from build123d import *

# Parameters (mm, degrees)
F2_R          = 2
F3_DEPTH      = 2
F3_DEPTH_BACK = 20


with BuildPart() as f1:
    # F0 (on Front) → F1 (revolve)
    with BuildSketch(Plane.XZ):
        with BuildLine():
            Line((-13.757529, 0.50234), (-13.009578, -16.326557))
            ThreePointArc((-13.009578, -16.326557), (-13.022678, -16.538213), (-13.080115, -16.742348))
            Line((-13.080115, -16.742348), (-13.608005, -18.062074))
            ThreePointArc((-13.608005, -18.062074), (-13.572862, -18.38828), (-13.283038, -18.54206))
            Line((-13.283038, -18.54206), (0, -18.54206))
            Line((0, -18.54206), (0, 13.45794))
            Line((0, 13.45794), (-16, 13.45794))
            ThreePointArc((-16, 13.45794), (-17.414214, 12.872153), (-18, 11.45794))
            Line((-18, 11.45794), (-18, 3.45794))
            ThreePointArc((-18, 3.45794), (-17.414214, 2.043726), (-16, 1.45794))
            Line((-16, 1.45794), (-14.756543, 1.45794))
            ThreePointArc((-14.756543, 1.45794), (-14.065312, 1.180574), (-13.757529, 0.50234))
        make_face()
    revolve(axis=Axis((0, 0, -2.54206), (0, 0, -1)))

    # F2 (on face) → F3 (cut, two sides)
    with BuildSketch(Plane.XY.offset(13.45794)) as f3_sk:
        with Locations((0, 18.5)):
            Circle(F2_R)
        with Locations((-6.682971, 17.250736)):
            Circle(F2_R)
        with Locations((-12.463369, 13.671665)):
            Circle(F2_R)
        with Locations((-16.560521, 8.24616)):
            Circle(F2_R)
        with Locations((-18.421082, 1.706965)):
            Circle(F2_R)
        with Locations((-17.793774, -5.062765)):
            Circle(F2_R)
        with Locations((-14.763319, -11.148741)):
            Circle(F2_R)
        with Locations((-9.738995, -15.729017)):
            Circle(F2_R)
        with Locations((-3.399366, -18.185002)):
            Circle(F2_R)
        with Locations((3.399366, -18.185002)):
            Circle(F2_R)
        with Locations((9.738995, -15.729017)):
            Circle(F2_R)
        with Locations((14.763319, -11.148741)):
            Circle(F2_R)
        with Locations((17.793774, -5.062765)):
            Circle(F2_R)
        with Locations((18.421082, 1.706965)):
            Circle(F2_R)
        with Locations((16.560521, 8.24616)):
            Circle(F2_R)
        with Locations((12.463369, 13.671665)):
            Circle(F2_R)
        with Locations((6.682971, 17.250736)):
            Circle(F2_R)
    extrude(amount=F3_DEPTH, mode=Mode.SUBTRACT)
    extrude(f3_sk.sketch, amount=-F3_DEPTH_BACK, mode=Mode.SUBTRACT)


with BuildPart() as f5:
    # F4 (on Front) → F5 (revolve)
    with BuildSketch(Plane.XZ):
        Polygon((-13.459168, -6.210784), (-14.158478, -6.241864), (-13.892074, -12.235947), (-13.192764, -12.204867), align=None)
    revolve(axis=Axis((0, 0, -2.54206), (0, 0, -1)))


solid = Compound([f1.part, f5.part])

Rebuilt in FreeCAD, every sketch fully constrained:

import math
import FreeCAD as App
import Part
import Sketcher
from FreeCAD import Vector
Q = App.Units.Quantity


def add_polygon(sketch, points):
    """Adds a closed chain of lines whose ends are joined by coincident constraints."""
    first, n = sketch.GeometryCount, len(points)
    for a, b in zip(points, points[1:] + points[:1]):
        sketch.addGeometry(Part.LineSegment(App.Vector(*a, 0), App.Vector(*b, 0)), False)
    for i in range(n):
        sketch.addConstraint(Sketcher.Constraint("Coincident", first + i, 2, first + (i + 1) % n, 1))

doc = App.newDocument("Part")
body = doc.addObject("PartDesign::Body", "Body")

# Sketch on XZ plane
sketch1 = body.newObject("Sketcher::SketchObject", "Sketch")
sketch1.AttachmentSupport = (doc.getObject("XZ_Plane"), [""])
sketch1.MapMode = "FlatFace"
sketch1.addGeometry([
    Part.LineSegment(Vector(-13.76, 0.5, 0), Vector(-13.01, -16.33, 0)),  # 0
    Part.ArcOfCircle(Part.Circle(Vector(-14.01, -16.37, 0), Vector(0, 0, 1), 1), math.radians(-22), math.radians(3)),  # 1
    Part.LineSegment(Vector(-13.08, -16.74, 0), Vector(-13.61, -18.06, 0)),  # 2
    Part.ArcOfCircle(Part.Circle(Vector(-13.28, -18.19, 0), Vector(0, 0, 1), 0.35), math.radians(158), math.radians(270)),  # 3
    Part.LineSegment(Vector(-13.28, -18.54, 0), Vector(0, -18.54, 0)),  # 4
    Part.LineSegment(Vector(0, -18.54, 0), Vector(0, 13.46, 0)),  # 5
    Part.LineSegment(Vector(0, 13.46, 0), Vector(-16, 13.46, 0)),  # 6
    Part.ArcOfCircle(Part.Circle(Vector(-16, 11.46, 0), Vector(0, 0, 1), 2), math.radians(90), math.radians(180)),  # 7
    Part.LineSegment(Vector(-18, 11.46, 0), Vector(-18, 3.46, 0)),  # 8
    Part.ArcOfCircle(Part.Circle(Vector(-16, 3.46, 0), Vector(0, 0, 1), 2), math.radians(180), math.radians(270)),  # 9
    Part.LineSegment(Vector(-16, 1.46, 0), Vector(-14.76, 1.46, 0)),  # 10
    Part.ArcOfCircle(Part.Circle(Vector(-14.76, 0.46, 0), Vector(0, 0, 1), 1), math.radians(3), math.radians(90)),  # 11
], False)
sketch1.addConstraint([
    Sketcher.Constraint("Tangent", 0, 2, 1, 2),
    Sketcher.Constraint("Tangent", 1, 1, 2, 1),
    Sketcher.Constraint("Tangent", 2, 2, 3, 1),
    Sketcher.Constraint("Coincident", 3, 2, 4, 1),
    Sketcher.Constraint("Coincident", 4, 2, 5, 1),
    Sketcher.Constraint("Coincident", 5, 2, 6, 1),
    Sketcher.Constraint("Tangent", 6, 2, 7, 1),
    Sketcher.Constraint("Tangent", 7, 2, 8, 1),
    Sketcher.Constraint("Tangent", 8, 2, 9, 1),
    Sketcher.Constraint("Tangent", 9, 2, 10, 1),
    Sketcher.Constraint("Tangent", 10, 2, 11, 2),
    Sketcher.Constraint("Tangent", 11, 1, 0, 1),
    Sketcher.Constraint("Horizontal", 4),
    Sketcher.Constraint("Vertical", 5),
    Sketcher.Constraint("Horizontal", 6),
    Sketcher.Constraint("Vertical", 8),
    Sketcher.Constraint("Horizontal", 10),
    Sketcher.Constraint("Equal", 7, 9),
    Sketcher.Constraint("PointOnObject", 4, 2, -2),
    Sketcher.Constraint("Radius", 7, Q("2 mm")),
    Sketcher.Constraint("Radius", 11, Q("1 mm")),
    Sketcher.Constraint("DistanceX", 6, 2, 6, 1, Q("16 mm")),
    Sketcher.Constraint("DistanceY", 5, 1, 5, 2, Q("32 mm")),
    Sketcher.Constraint("DistanceY", 8, 2, 8, 1, Q("8 mm")),
    Sketcher.Constraint("Radius", 3, Q("0.349999 mm")),
    Sketcher.Constraint("Radius", 1, Q("0.999991 mm")),
    Sketcher.Constraint("DistanceY", 3, 3, 1, 3, Q("1.821101 mm")),
    Sketcher.Constraint("DistanceY", 11, 3, 11, 1, Q("0.0444 mm")),
    Sketcher.Constraint("Distance", 2, Q("1.421388 mm")),
    Sketcher.Constraint("DistanceX", 4, 1, 4, 2, Q("13.283038 mm")),
    Sketcher.Constraint("DistanceX", 10, 1, 10, 2, Q("1.243457 mm")),
    Sketcher.Constraint("DistanceY", 1, 3, -1, 1, Q("16.370959 mm")),
])
revolution = body.newObject("PartDesign::Revolution", "Revolution")
revolution.Profile = sketch1
revolution.ReferenceAxis = (sketch1, ["V_Axis"])
revolution.Angle = 360

# Sketch on XY plane
sketch2 = body.newObject("Sketcher::SketchObject", "Sketch001")
sketch2.AttachmentSupport = (doc.getObject("XY_Plane"), [""])
sketch2.MapMode = "FlatFace"
sketch2.AttachmentOffset = App.Placement(Vector(0, 0, 13.45794), App.Rotation())
sketch2.addGeometry([
    Part.Circle(Vector(0, 18.5, 0), Vector(0, 0, 1), 2),  # 0
    Part.Circle(Vector(-6.7, 17.3, 0), Vector(0, 0, 1), 2),  # 1
    Part.Circle(Vector(-12.5, 13.7, 0), Vector(0, 0, 1), 2),  # 2
    Part.Circle(Vector(-16.6, 8.2, 0), Vector(0, 0, 1), 2),  # 3
    Part.Circle(Vector(-18.4, 1.7, 0), Vector(0, 0, 1), 2),  # 4
    Part.Circle(Vector(-17.8, -5.1, 0), Vector(0, 0, 1), 2),  # 5
    Part.Circle(Vector(-14.8, -11.1, 0), Vector(0, 0, 1), 2),  # 6
    Part.Circle(Vector(-9.7, -15.7, 0), Vector(0, 0, 1), 2),  # 7
    Part.Circle(Vector(-3.4, -18.2, 0), Vector(0, 0, 1), 2),  # 8
    Part.Circle(Vector(3.4, -18.2, 0), Vector(0, 0, 1), 2),  # 9
    Part.Circle(Vector(9.7, -15.7, 0), Vector(0, 0, 1), 2),  # 10
    Part.Circle(Vector(14.8, -11.1, 0), Vector(0, 0, 1), 2),  # 11
    Part.Circle(Vector(17.8, -5.1, 0), Vector(0, 0, 1), 2),  # 12
    Part.Circle(Vector(18.4, 1.7, 0), Vector(0, 0, 1), 2),  # 13
    Part.Circle(Vector(16.6, 8.2, 0), Vector(0, 0, 1), 2),  # 14
    Part.Circle(Vector(12.5, 13.7, 0), Vector(0, 0, 1), 2),  # 15
    Part.Circle(Vector(6.7, 17.3, 0), Vector(0, 0, 1), 2),  # 16
], False)
sketch2.addConstraint([
    Sketcher.Constraint("Equal", 0, 1),
    Sketcher.Constraint("Equal", 1, 2),
    Sketcher.Constraint("Equal", 2, 3),
    Sketcher.Constraint("Equal", 3, 4),
    Sketcher.Constraint("Equal", 4, 5),
    Sketcher.Constraint("Equal", 5, 6),
    Sketcher.Constraint("Equal", 6, 7),
    Sketcher.Constraint("Equal", 7, 8),
    Sketcher.Constraint("Equal", 8, 9),
    Sketcher.Constraint("Equal", 9, 10),
    Sketcher.Constraint("Equal", 10, 11),
    Sketcher.Constraint("Equal", 11, 12),
    Sketcher.Constraint("Equal", 12, 13),
    Sketcher.Constraint("Equal", 13, 14),
    Sketcher.Constraint("Equal", 14, 15),
    Sketcher.Constraint("Equal", 15, 16),
    Sketcher.Constraint("Symmetric", 8, 3, 9, 3, -2),
    Sketcher.Constraint("Symmetric", 7, 3, 10, 3, -2),
    Sketcher.Constraint("Symmetric", 6, 3, 11, 3, -2),
    Sketcher.Constraint("Symmetric", 5, 3, 12, 3, -2),
    Sketcher.Constraint("Symmetric", 4, 3, 13, 3, -2),
    Sketcher.Constraint("Symmetric", 3, 3, 14, 3, -2),
    Sketcher.Constraint("Symmetric", 2, 3, 15, 3, -2),
    Sketcher.Constraint("Symmetric", 1, 3, 16, 3, -2),
    Sketcher.Constraint("PointOnObject", 0, 3, -2),
    Sketcher.Constraint("Diameter", 0, Q("4 mm")),
    Sketcher.Constraint("DistanceY", -1, 1, 0, 3, Q("18.5 mm")),
    Sketcher.Constraint("DistanceY", 4, 3, 2, 3, Q("11.9647 mm")),
    Sketcher.Constraint("DistanceY", 5, 3, 1, 3, Q("22.313501 mm")),
    Sketcher.Constraint("DistanceY", 6, 3, 3, 3, Q("19.394901 mm")),
    Sketcher.Constraint("DistanceX", 1, 3, -1, 1, Q("6.682971 mm")),
    Sketcher.Constraint("DistanceX", 2, 3, -1, 1, Q("12.463369 mm")),
    Sketcher.Constraint("DistanceX", 3, 3, -1, 1, Q("16.560521 mm")),
    Sketcher.Constraint("DistanceY", -1, 1, 3, 3, Q("8.24616 mm")),
    Sketcher.Constraint("DistanceX", 4, 3, -1, 1, Q("18.421082 mm")),
    Sketcher.Constraint("DistanceX", 6, 3, -1, 1, Q("14.763319 mm")),
    Sketcher.Constraint("DistanceY", 2, 3, 1, 3, Q("3.579071 mm")),
    Sketcher.Constraint("DistanceX", 5, 3, 7, 3, Q("8.054779 mm")),
    Sketcher.Constraint("DistanceY", 7, 3, 4, 3, Q("17.435982 mm")),
    Sketcher.Constraint("DistanceX", 7, 3, 8, 3, Q("6.339629 mm")),
    Sketcher.Constraint("DistanceY", 8, 3, 6, 3, Q("7.036261 mm")),
    Sketcher.Constraint("DistanceX", 7, 3, 9, 3, Q("13.138361 mm")),
    Sketcher.Constraint("DistanceY", -1, 1, 1, 3, Q("17.250736 mm")),
])
pocket1 = body.newObject("PartDesign::Pocket", "Pocket")
pocket1.Profile = sketch2
pocket1.Type = "ThroughAll"
pocket1.Midplane = True
body2 = doc.addObject("PartDesign::Body", "Body001")

# Sketch on XZ plane
sketch3 = body2.newObject("Sketcher::SketchObject", "Sketch002")
sketch3.AttachmentSupport = (doc.getObject("XZ_Plane001"), [""])
sketch3.MapMode = "FlatFace"
add_polygon(sketch3, [(-13.459168, -6.210784), (-14.158478, -6.241864), (-13.892074, -12.235947), (-13.192764, -12.204867)])  # lines 0-3
sketch3.addConstraint([
    Sketcher.Constraint("Distance", 1, Q("6 mm")),
    Sketcher.Constraint("Distance", 3, Q("6 mm")),
    Sketcher.Constraint("Distance", 0, Q("0.7 mm")),
    Sketcher.Constraint("Distance", 2, Q("0.7 mm")),
    Sketcher.Constraint("DistanceX", 1, 2, 2, 2, Q("0.69931 mm")),
    Sketcher.Constraint("DistanceX", 0, 2, -1, 1, Q("14.158478 mm")),
    Sketcher.Constraint("DistanceY", 0, 2, -1, 1, Q("6.241864 mm")),
    Sketcher.Constraint("DistanceX", 1, 2, -1, 1, Q("13.892074 mm")),
])
revolution2 = body2.newObject("PartDesign::Revolution", "Revolution001")
revolution2.Profile = sketch3
revolution2.ReferenceAxis = (sketch3, ["V_Axis"])
revolution2.Angle = 360

doc.recompute()
